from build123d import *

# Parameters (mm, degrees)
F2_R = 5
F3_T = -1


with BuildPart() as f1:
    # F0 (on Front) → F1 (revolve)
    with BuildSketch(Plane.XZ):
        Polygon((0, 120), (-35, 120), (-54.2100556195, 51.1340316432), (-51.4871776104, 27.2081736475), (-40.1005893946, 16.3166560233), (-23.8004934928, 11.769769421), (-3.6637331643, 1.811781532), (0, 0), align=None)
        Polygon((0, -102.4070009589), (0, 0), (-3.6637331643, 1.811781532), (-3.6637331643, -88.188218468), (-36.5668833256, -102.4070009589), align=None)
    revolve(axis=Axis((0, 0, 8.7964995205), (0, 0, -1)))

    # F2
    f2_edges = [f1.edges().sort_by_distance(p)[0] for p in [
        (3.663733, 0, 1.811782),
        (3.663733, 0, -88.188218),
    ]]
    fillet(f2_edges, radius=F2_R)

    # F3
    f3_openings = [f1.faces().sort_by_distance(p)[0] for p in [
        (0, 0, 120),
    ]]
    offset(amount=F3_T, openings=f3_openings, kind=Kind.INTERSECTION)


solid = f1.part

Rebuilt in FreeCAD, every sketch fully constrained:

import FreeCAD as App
import Part
import Sketcher


def edges_at(feature, points):
    """Names of the edges that pass closest to the given points."""
    edges = feature.Shape.Edges
    near = lambda p: min(range(len(edges)), key=lambda i: edges[i].distToShape(Part.Vertex(*p))[0])
    return sorted({f"Edge{near(p) + 1}" for p in points})


def faces_at(feature, points):
    """Names of the faces that lie closest to the given points."""
    faces = feature.Shape.Faces
    near = lambda p: min(range(len(faces)), key=lambda i: faces[i].distToShape(Part.Vertex(*p))[0])
    return sorted({f"Face{near(p) + 1}" for p in points})


def add_polygon(sketch, points):
    """Adds a closed chain of lines whose ends are joined by coincident constraints."""
    first, n = sketch.GeometryCount, len(points)
    for a, b in zip(points, points[1:] + points[:1]):
        sketch.addGeometry(Part.LineSegment(App.Vector(*a, 0), App.Vector(*b, 0)), False)
    for i in range(n):
        sketch.addConstraint(Sketcher.Constraint("Coincident", first + i, 2, first + (i + 1) % n, 1))

doc = App.newDocument("Part")
body = doc.addObject("PartDesign::Body", "Body")

sketch1 = doc.addObject("Sketcher::SketchObject", "Sketch")
body.addObject(sketch1)
sketch1.AttachmentSupport = (doc.XZ_Plane, [""])
sketch1.MapMode = "FlatFace"
add_polygon(sketch1, [(0, 120), (-35, 120), (-54.210056, 51.134032), (-51.487178, 27.208174), (-40.100589, 16.316656), (-23.800493, 11.769769), (-3.663733, 1.811782), (-3.663733, -88.188218), (-36.566883, -102.407001), (0, -102.407001)])
sketch1.addConstraint([
    Sketcher.Constraint("Horizontal", 0),
    Sketcher.Constraint("Vertical", 6),
    Sketcher.Constraint("Horizontal", 8),
    Sketcher.Constraint("Vertical", 9),
    Sketcher.Constraint("PointOnObject", 8, 2, -2),
    Sketcher.Constraint("Perpendicular", 1, 4),
    Sketcher.Constraint("DistanceX", 0, 2, 0, 1, 35.0),
    Sketcher.Constraint("DistanceY", 6, 2, 6, 1, 90.0),
    Sketcher.Constraint("DistanceY", -1, 1, 0, 2, 120.0),
    Sketcher.Constraint("DistanceY", 9, 1, 9, 2, 222.407001),
    Sketcher.Constraint("Distance", 1, 71.49509),
    Sketcher.Constraint("Distance", 3, 15.756889),
    Sketcher.Constraint("Distance", 4, 16.922391),
    Sketcher.Constraint("Distance", 5, 22.464431),
    Sketcher.Constraint("DistanceX", 8, 1, 8, 2, 36.566883),
    Sketcher.Constraint("DistanceY", -1, 1, 1, 2, 51.134032),
    Sketcher.Constraint("DistanceX", 3, 2, -1, 1, 40.100589),
    Sketcher.Constraint("DistanceY", -1, 1, 4, 2, 11.769769),
    Sketcher.Constraint("DistanceY", -1, 1, 5, 2, 1.811782),
    Sketcher.Constraint("DistanceX", 1, 2, 2, 2, 2.722878),
])
revolution = doc.addObject("PartDesign::Revolution", "Revolution")
body.addObject(revolution)
revolution.Profile = sketch1
revolution.ReferenceAxis = (sketch1, ["V_Axis"])
revolution.Angle = 360
doc.recompute()

fillet = doc.addObject("PartDesign::Fillet", "Fillet")
body.addObject(fillet)
fillet.Base = (revolution, edges_at(revolution, [(3.664, 0, 1.812), (3.664, 0, -88.188)]))
fillet.Radius = 5
doc.recompute()

thickness = doc.addObject("PartDesign::Thickness", "Thickness")
body.addObject(thickness)
thickness.Base = (fillet, faces_at(fillet, [(0, 0, 120)]))
thickness.Value = 1
thickness.Reversed = True
thickness.Join = "Intersection"

doc.recompute()
